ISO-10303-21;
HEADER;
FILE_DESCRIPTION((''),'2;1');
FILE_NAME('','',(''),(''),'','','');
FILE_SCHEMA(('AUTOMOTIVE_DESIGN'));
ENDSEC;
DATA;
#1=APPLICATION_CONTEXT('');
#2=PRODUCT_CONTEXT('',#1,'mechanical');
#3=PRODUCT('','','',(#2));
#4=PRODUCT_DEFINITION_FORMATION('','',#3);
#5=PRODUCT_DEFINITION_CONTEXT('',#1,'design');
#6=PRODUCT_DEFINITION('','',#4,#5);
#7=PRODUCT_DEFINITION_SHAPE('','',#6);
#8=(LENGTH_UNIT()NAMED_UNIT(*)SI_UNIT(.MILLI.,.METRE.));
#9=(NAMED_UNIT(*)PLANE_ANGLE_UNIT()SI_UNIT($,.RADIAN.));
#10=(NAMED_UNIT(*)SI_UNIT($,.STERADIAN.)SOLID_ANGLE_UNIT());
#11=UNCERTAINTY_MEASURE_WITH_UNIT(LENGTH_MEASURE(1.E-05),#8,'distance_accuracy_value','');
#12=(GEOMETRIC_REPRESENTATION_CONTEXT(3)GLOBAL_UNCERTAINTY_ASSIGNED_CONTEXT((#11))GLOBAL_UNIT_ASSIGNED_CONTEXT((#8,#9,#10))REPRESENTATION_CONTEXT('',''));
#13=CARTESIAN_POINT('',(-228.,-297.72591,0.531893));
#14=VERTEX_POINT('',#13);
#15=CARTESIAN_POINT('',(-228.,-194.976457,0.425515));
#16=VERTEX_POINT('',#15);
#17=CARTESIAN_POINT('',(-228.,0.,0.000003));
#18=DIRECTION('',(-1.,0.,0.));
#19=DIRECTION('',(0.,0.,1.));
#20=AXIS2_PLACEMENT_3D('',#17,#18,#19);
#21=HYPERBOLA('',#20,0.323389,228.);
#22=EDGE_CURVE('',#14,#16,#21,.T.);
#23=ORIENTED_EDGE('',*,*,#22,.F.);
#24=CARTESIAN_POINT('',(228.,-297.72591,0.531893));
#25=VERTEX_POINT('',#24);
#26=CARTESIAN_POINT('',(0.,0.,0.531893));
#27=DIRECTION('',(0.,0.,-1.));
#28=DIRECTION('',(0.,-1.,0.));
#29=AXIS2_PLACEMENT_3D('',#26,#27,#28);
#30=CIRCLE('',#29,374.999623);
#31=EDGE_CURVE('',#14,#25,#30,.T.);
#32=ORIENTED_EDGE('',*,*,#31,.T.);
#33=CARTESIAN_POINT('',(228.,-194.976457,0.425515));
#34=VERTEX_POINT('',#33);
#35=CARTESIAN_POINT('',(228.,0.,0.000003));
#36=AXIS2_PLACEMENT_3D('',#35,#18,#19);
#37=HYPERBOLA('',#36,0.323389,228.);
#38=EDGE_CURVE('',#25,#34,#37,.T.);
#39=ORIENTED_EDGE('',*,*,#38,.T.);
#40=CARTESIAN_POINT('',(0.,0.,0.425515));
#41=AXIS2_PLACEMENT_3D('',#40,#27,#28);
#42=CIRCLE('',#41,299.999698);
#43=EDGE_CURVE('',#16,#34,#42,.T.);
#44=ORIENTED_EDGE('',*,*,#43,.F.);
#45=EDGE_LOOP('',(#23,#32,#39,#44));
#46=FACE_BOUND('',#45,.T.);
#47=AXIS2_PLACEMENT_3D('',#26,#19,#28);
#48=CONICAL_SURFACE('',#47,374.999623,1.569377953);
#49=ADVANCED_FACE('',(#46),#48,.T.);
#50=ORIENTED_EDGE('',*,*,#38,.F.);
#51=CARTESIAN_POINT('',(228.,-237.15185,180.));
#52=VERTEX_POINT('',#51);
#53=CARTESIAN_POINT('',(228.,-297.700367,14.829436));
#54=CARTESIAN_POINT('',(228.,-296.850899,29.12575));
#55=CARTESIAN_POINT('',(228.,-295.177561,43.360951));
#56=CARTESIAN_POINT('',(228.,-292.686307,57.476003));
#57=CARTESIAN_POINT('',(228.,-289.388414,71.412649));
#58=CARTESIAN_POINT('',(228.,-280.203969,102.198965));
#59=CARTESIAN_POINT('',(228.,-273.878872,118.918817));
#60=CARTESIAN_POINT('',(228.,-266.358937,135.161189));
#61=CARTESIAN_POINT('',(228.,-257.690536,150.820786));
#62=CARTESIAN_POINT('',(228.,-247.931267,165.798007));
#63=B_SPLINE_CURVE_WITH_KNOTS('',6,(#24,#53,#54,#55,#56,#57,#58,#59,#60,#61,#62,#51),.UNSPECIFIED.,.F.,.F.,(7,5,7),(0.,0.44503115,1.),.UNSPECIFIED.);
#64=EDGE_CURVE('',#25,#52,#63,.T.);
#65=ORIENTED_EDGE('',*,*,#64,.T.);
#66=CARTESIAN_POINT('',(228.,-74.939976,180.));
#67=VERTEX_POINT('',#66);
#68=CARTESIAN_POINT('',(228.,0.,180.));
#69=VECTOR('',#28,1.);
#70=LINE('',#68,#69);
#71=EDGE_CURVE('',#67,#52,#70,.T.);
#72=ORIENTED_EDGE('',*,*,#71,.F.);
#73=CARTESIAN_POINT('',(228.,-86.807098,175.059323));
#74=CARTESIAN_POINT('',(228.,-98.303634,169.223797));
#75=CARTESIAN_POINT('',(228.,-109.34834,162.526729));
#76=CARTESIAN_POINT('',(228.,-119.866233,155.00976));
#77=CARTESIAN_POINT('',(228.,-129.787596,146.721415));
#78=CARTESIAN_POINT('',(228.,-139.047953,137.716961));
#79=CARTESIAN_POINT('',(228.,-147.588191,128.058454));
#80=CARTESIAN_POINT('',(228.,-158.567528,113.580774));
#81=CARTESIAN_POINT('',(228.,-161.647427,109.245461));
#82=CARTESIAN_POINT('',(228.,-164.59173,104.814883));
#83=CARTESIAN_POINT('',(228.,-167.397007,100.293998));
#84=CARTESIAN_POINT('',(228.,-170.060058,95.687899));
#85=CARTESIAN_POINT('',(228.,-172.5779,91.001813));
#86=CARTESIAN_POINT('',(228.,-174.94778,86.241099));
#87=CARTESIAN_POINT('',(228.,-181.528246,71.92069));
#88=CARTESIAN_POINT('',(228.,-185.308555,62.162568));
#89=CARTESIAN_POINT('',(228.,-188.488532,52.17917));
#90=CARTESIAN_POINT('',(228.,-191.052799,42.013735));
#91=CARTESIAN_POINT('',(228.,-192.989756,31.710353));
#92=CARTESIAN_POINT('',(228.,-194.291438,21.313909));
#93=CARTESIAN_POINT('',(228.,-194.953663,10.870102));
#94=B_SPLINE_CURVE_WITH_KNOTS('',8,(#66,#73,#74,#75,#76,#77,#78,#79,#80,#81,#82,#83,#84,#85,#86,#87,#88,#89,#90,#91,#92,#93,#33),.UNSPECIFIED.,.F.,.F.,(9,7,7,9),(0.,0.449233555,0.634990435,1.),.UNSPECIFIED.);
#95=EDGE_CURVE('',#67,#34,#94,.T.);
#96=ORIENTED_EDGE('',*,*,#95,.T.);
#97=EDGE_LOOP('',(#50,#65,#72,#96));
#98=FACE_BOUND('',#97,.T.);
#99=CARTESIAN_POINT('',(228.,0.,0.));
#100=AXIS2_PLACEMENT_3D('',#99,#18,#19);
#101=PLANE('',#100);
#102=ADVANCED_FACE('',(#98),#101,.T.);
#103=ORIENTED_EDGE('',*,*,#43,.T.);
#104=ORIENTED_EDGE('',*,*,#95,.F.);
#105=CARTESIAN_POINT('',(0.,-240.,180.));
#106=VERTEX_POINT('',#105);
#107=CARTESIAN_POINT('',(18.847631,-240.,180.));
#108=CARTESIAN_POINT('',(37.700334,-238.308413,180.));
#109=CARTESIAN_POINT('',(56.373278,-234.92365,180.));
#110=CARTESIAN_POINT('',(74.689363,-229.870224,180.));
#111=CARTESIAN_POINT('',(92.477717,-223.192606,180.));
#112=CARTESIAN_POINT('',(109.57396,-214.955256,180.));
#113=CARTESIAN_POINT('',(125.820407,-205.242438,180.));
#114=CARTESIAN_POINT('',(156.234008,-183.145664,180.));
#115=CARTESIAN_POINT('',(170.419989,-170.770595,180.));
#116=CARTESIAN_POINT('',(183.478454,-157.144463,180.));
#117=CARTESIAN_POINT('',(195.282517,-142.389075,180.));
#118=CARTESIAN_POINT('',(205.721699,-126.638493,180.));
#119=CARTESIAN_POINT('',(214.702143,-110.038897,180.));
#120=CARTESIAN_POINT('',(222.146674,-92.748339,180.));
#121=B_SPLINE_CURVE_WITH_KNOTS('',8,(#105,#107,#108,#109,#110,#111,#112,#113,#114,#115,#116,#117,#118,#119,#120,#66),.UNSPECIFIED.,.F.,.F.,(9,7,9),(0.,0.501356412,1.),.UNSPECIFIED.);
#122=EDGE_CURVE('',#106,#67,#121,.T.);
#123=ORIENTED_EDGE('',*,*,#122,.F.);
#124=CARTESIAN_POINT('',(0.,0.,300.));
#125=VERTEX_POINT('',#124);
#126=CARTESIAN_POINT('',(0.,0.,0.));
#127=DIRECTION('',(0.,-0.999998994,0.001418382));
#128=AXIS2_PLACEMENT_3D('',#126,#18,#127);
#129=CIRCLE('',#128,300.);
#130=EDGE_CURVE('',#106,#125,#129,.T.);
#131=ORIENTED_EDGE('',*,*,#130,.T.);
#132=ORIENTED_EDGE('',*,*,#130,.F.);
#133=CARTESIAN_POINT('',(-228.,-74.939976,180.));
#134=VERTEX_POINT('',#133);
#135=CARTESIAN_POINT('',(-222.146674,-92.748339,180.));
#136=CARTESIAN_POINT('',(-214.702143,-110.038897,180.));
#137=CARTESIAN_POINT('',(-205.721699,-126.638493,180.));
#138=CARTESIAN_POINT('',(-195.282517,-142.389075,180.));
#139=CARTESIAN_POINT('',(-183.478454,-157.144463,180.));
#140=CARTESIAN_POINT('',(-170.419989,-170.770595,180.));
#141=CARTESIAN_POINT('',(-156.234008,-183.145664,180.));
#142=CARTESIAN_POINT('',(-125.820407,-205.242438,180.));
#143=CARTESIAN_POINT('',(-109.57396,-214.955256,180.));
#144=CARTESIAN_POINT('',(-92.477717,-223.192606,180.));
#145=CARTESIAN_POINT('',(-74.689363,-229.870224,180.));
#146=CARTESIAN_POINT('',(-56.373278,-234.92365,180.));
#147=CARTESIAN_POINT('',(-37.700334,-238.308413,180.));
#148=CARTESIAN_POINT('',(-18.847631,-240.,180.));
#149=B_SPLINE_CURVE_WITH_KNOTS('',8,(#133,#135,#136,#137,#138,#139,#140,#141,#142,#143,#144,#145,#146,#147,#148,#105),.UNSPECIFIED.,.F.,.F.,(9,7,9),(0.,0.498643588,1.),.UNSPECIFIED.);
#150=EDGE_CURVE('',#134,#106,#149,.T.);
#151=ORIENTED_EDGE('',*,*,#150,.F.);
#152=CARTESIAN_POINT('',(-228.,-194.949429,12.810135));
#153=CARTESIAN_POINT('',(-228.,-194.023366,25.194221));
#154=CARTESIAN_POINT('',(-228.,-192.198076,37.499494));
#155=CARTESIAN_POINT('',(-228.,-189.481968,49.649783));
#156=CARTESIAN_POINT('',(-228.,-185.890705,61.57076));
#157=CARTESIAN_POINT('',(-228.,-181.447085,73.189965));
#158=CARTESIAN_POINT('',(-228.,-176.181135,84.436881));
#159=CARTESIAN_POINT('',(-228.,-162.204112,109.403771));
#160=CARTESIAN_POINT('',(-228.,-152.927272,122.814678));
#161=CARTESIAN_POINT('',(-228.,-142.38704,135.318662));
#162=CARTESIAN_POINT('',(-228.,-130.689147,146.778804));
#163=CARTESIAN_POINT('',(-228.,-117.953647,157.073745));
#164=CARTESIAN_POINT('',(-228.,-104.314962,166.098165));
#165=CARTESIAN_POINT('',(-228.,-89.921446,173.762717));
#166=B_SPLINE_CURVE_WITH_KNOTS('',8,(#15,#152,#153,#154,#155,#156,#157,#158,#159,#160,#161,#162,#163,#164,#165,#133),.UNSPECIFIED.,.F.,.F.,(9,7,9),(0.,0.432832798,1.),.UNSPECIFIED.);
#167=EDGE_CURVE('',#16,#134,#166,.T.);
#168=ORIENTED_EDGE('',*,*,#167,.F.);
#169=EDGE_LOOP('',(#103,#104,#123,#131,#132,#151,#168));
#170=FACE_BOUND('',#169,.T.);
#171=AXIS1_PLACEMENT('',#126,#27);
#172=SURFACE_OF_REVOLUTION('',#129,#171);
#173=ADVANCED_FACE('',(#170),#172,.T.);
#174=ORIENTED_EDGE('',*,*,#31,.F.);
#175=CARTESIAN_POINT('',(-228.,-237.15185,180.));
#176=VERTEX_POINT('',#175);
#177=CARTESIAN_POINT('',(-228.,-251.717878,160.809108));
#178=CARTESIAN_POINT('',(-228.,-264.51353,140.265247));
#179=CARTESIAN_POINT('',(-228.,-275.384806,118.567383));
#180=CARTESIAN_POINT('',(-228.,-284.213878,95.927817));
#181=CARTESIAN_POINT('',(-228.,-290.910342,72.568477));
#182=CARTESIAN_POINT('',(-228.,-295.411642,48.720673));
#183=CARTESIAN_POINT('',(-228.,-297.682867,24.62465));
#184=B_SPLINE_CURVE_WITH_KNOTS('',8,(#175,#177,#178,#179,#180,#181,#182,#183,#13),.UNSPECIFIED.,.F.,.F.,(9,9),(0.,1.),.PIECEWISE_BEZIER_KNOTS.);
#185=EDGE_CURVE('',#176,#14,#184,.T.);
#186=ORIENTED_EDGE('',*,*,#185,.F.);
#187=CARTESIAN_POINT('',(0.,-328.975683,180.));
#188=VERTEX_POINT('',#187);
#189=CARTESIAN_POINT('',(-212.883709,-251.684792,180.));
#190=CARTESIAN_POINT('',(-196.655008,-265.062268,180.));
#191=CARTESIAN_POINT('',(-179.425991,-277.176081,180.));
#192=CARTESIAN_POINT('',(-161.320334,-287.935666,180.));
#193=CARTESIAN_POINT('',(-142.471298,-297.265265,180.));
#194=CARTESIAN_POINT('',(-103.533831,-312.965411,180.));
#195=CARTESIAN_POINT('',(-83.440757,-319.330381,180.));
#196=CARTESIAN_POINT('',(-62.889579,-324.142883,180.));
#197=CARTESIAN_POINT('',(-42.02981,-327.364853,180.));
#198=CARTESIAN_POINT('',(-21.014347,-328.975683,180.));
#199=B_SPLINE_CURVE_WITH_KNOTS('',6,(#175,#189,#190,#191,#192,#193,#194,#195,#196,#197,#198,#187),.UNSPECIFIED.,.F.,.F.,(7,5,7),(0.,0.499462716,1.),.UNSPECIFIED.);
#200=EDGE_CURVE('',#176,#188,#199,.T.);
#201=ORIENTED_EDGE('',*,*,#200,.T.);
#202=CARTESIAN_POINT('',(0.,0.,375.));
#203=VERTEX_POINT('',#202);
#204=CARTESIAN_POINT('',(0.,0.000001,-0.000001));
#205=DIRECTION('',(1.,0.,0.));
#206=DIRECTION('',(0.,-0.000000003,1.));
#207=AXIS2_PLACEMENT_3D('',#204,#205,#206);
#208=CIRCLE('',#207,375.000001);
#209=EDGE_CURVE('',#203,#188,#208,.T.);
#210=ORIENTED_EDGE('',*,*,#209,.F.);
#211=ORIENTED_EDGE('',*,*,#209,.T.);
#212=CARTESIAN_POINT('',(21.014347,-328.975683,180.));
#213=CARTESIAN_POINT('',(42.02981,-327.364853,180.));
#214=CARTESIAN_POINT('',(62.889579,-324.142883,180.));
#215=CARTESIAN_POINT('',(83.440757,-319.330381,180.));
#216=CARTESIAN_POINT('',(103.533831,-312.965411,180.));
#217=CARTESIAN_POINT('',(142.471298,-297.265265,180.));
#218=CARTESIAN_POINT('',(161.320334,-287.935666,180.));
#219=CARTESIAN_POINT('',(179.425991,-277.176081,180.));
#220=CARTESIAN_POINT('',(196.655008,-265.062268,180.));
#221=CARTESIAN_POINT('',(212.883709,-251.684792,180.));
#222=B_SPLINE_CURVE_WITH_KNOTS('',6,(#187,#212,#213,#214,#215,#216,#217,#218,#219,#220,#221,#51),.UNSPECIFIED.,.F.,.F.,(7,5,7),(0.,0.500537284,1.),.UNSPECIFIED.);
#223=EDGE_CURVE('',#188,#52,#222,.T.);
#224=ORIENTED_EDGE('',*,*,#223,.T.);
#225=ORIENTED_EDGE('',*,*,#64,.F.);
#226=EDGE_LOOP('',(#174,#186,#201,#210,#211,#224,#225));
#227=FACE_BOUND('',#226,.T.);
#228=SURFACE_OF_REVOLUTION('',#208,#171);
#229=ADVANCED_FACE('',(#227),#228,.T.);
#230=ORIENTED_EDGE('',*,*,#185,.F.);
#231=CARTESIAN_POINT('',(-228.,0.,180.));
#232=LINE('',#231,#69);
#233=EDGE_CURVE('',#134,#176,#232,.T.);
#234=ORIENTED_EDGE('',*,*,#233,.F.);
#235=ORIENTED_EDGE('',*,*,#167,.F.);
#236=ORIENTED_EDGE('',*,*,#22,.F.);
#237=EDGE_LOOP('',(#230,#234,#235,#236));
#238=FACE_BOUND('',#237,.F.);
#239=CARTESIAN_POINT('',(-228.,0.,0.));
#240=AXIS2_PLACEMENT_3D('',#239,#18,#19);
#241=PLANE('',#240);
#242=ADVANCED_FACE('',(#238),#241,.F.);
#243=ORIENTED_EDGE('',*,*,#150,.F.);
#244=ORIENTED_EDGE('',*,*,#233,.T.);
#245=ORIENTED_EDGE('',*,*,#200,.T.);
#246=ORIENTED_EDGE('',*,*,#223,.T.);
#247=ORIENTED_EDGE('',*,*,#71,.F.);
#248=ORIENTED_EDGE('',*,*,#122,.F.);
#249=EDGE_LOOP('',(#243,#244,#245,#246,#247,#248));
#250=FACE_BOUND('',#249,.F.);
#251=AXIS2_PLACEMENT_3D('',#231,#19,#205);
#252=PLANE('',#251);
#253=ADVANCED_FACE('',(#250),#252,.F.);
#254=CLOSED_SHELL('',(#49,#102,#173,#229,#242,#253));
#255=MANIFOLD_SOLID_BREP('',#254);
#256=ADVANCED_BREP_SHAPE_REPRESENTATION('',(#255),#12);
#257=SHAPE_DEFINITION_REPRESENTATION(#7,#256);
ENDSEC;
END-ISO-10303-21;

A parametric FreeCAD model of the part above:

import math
import FreeCAD as App
import Part
import Sketcher
from FreeCAD import Vector
Q = App.Units.Quantity


def add_polygon(sketch, points):
    """Adds a closed chain of lines whose ends are joined by coincident constraints."""
    first, n = sketch.GeometryCount, len(points)
    for a, b in zip(points, points[1:] + points[:1]):
        sketch.addGeometry(Part.LineSegment(App.Vector(*a, 0), App.Vector(*b, 0)), False)
    for i in range(n):
        sketch.addConstraint(Sketcher.Constraint("Coincident", first + i, 2, first + (i + 1) % n, 1))

doc = App.newDocument("Part")
body = doc.addObject("PartDesign::Body", "Body")

# Sketch on YZ plane
sketch1 = doc.addObject("Sketcher::SketchObject", "Sketch")
body.addObject(sketch1)
sketch1.AttachmentSupport = (doc.YZ_Plane, [""])
sketch1.MapMode = "FlatFace"
sketch1.addGeometry(Part.ArcOfCircle(Part.Circle(Vector(0, 0, 0), Vector(0, 0, 1), 300), math.radians(90), math.radians(179.918733)), False)
sketch1.addGeometry(Part.LineSegment(Vector(0, 300, 0), Vector(0, 375, 0)), False)
sketch1.addGeometry(Part.ArcOfCircle(Part.Circle(Vector(0.000001, -0.000001, 0), Vector(0, 0, 1), 375.000001), math.radians(90), math.radians(179.918733)), False)
sketch1.addGeometry(Part.LineSegment(Vector(-374.999623, 0.531893, 0), Vector(-299.999698, 0.425515, 0)), False)
sketch1.addConstraint(Sketcher.Constraint("Coincident", 0, 1, 1, 1))
sketch1.addConstraint(Sketcher.Constraint("Coincident", 1, 2, 2, 1))
sketch1.addConstraint(Sketcher.Constraint("Coincident", 2, 2, 3, 1))
sketch1.addConstraint(Sketcher.Constraint("Coincident", 3, 2, 0, 2))
sketch1.addConstraint(Sketcher.Constraint("Vertical", 1))
sketch1.addConstraint(Sketcher.Constraint("Coincident", 0, 3, -1, 1))
sketch1.addConstraint(Sketcher.Constraint("Coincident", 2, 3, -1, 1))
sketch1.addConstraint(Sketcher.Constraint("PointOnObject", 0, 1, -2))
sketch1.addConstraint(Sketcher.Constraint("Radius", 0, Q("300 mm")))
sketch1.addConstraint(Sketcher.Constraint("Radius", 2, Q("375.000001 mm")))
sketch1.addConstraint(Sketcher.Constraint("DistanceY", -1, 1, 2, 2, Q("0.531893 mm")))
sketch1.addConstraint(Sketcher.Constraint("DistanceY", -1, 1, 3, 2, Q("0.425515 mm")))
revolution = doc.addObject("PartDesign::Revolution", "Revolution")
body.addObject(revolution)
revolution.Profile = sketch1
revolution.ReferenceAxis = (sketch1, ["V_Axis"])
revolution.Angle = 360

# Sketch on XZ plane
sketch2 = doc.addObject("Sketcher::SketchObject", "Sketch001")
body.addObject(sketch2)
sketch2.AttachmentSupport = (doc.XZ_Plane, [""])
sketch2.MapMode = "FlatFace"
add_polygon(sketch2, [(-228, 180), (-228, 0), (228, 0), (228, 180)])  # lines 0-3
sketch2.addConstraint(Sketcher.Constraint("Vertical", 0))
sketch2.addConstraint(Sketcher.Constraint("Horizontal", 1))
sketch2.addConstraint(Sketcher.Constraint("Vertical", 2))
sketch2.addConstraint(Sketcher.Constraint("Horizontal", 3))
sketch2.addConstraint(Sketcher.Constraint("Symmetric", 0, 2, 1, 2, -1, 1))
sketch2.addConstraint(Sketcher.Constraint("DistanceX", 1, 1, 1, 2, Q("456 mm")))
sketch2.addConstraint(Sketcher.Constraint("DistanceY", 0, 2, 0, 1, Q("180 mm")))
pocket1 = doc.addObject("PartDesign::Pocket", "Pocket")
body.addObject(pocket1)
pocket1.Profile = sketch2
pocket1.Length = 400
pocket1.Reversed = True

doc.recompute()
